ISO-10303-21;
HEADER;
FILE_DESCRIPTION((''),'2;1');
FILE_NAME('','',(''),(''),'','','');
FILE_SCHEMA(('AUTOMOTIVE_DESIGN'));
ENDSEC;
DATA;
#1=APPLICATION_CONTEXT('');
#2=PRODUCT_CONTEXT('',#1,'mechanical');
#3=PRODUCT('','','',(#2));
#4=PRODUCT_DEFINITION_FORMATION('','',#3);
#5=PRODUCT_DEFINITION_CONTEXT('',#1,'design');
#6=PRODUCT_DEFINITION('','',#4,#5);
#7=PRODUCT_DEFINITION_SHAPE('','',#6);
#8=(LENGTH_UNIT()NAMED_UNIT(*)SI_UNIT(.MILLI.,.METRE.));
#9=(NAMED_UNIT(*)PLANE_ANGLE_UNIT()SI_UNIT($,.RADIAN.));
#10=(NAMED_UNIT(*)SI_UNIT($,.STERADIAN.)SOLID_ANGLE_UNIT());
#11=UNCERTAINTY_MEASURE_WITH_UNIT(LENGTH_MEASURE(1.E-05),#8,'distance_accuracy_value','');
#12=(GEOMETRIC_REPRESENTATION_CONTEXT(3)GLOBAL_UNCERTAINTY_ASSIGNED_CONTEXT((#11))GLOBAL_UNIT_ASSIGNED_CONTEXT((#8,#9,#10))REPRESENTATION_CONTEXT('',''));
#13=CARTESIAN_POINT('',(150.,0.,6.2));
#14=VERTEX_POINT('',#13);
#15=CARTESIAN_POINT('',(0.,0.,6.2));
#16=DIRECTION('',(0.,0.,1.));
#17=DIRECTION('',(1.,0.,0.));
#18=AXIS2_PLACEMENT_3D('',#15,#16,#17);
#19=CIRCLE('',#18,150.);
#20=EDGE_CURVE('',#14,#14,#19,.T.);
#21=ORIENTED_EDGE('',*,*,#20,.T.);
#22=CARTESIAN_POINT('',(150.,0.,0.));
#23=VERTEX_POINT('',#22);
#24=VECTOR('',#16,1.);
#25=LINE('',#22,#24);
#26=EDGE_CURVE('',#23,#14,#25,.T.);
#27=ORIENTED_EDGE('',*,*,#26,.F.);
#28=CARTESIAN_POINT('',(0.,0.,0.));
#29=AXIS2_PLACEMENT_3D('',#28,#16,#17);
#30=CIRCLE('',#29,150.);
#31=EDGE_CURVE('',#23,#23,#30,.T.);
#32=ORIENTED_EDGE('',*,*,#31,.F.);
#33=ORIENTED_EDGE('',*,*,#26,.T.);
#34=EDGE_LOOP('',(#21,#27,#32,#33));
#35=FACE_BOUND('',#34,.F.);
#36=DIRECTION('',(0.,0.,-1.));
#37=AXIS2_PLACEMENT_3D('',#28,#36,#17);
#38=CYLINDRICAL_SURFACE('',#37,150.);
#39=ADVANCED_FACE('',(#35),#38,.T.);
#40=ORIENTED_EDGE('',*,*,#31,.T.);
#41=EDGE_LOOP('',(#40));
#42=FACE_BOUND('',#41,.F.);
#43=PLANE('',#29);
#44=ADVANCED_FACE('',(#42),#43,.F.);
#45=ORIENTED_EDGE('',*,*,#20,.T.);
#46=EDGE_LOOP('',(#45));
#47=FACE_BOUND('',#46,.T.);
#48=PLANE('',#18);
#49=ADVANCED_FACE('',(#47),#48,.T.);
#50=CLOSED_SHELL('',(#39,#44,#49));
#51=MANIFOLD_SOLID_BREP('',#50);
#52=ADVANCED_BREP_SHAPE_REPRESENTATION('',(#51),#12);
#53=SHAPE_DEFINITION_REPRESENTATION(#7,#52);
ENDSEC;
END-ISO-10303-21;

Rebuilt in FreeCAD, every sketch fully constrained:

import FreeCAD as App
import Part
import Sketcher

doc = App.newDocument("Part")
body = doc.addObject("PartDesign::Body", "Body")

# Sketch on XY plane
sketch1 = body.newObject("Sketcher::SketchObject", "Sketch")
sketch1.AttachmentSupport = (doc.getObject("XY_Plane"), [""])
sketch1.MapMode = "FlatFace"
sketch1.addGeometry(Part.Circle(App.Vector(0, 0, 0), App.Vector(0, 0, 1), 150), False)
sketch1.addConstraint(Sketcher.Constraint("Coincident", 0, 3, -1, 1))
sketch1.addConstraint(Sketcher.Constraint("Diameter", 0, 300.0))
pad1 = body.newObject("PartDesign::Pad", "Pad")
pad1.Profile = sketch1
pad1.Length = 6.2

doc.recompute()
